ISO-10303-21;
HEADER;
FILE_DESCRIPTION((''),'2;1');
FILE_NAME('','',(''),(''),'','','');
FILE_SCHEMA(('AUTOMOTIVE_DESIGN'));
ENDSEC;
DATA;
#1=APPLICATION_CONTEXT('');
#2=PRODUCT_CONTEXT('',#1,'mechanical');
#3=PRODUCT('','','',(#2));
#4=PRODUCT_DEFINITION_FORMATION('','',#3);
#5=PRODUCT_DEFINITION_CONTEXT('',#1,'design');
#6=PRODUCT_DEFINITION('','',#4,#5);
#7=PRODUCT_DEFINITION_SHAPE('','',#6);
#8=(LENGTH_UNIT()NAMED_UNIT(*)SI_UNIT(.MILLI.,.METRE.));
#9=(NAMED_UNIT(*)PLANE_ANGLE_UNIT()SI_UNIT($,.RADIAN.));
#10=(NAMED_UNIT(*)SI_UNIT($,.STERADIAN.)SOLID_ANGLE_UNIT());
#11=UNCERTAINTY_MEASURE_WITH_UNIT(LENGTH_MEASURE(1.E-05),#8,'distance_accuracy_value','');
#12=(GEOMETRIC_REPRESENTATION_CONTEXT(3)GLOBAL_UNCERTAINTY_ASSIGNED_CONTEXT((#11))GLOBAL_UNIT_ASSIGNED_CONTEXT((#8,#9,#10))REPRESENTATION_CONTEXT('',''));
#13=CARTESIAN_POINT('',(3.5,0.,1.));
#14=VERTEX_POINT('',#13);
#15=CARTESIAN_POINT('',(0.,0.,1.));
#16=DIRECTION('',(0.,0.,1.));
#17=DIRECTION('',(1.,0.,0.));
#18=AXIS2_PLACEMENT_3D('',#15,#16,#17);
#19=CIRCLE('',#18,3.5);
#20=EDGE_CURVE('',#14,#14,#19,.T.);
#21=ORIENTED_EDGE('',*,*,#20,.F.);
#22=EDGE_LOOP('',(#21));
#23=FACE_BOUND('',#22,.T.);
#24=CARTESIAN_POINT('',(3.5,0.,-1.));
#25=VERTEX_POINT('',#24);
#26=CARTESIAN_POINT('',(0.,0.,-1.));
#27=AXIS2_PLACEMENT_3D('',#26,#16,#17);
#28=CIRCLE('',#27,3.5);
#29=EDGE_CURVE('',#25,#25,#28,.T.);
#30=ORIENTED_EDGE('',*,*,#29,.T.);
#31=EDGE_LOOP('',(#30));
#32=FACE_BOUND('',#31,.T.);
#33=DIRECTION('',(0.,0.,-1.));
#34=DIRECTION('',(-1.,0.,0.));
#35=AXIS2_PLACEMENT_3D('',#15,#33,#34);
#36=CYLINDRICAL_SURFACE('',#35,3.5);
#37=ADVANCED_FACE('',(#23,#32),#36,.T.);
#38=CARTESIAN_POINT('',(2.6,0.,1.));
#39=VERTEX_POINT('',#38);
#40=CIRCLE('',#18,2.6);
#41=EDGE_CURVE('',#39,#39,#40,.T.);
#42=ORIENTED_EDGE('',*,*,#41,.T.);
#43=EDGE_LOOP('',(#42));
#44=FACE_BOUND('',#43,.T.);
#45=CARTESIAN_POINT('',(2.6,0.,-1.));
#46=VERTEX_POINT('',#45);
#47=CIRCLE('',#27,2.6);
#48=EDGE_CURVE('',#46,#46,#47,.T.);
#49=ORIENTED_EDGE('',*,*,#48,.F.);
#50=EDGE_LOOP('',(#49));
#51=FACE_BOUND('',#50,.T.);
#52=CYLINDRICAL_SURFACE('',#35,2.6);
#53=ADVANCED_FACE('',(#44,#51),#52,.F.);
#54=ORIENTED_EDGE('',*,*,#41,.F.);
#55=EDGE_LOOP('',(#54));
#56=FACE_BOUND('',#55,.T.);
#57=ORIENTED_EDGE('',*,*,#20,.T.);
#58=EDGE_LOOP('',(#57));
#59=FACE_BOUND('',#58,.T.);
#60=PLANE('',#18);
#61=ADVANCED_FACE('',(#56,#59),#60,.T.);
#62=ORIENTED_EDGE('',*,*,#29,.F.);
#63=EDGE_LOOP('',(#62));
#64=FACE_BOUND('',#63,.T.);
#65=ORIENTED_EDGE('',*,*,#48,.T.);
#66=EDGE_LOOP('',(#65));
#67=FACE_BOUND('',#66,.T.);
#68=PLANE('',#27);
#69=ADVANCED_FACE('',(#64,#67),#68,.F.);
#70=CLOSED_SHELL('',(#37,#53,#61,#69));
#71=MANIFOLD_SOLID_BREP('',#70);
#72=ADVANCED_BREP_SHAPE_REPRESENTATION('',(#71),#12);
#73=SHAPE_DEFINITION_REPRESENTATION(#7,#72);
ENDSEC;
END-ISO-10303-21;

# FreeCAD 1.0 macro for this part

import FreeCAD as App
import Part
import Sketcher

V = App.Vector

doc = App.newDocument("Part")
body = doc.addObject("PartDesign::Body", "Body")

# Sketch on XY plane
sketch1 = doc.addObject("Sketcher::SketchObject", "Sketch")
body.addObject(sketch1)
sketch1.AttachmentSupport = (doc.XY_Plane, [""])
sketch1.MapMode = "FlatFace"
sketch1.addGeometry(Part.Circle(V(0, 0, 0), V(0, 0, 1), 3.5), False)
sketch1.addGeometry(Part.Circle(V(0, 0, 0), V(0, 0, 1), 2.6), False)
sketch1.addConstraint(Sketcher.Constraint("Coincident", 0, 3, -1, 1))
sketch1.addConstraint(Sketcher.Constraint("Coincident", 1, 3, -1, 1))
sketch1.addConstraint(Sketcher.Constraint("Diameter", 0, 7.0))
sketch1.addConstraint(Sketcher.Constraint("Diameter", 1, 5.2))
pad1 = doc.addObject("PartDesign::Pad", "Pad")
body.addObject(pad1)
pad1.Profile = sketch1
pad1.Length = 2
pad1.Midplane = True

doc.recompute()
